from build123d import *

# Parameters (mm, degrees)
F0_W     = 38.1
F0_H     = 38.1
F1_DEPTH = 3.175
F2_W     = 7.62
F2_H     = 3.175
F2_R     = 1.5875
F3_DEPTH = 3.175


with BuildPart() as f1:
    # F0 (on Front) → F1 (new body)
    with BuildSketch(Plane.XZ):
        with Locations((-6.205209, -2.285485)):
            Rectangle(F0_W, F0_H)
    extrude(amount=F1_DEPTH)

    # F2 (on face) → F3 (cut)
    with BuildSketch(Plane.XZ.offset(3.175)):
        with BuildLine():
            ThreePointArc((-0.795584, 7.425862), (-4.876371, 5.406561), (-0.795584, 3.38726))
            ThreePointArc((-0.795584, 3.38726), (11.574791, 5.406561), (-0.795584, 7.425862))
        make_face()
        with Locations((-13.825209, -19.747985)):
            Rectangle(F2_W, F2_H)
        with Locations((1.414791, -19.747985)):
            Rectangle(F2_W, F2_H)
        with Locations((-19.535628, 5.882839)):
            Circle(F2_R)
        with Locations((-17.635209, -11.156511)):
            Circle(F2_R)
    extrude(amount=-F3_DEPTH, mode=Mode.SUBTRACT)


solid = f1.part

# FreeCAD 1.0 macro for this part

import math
import FreeCAD as App
import Part
import Sketcher
Q = App.Units.Quantity


def add_polygon(sketch, points):
    """Adds a closed chain of lines whose ends are joined by coincident constraints."""
    first, n = sketch.GeometryCount, len(points)
    for a, b in zip(points, points[1:] + points[:1]):
        sketch.addGeometry(Part.LineSegment(App.Vector(*a, 0), App.Vector(*b, 0)), False)
    for i in range(n):
        sketch.addConstraint(Sketcher.Constraint("Coincident", first + i, 2, first + (i + 1) % n, 1))

doc = App.newDocument("Part")
body = doc.addObject("PartDesign::Body", "Body")

sketch1 = body.newObject("Sketcher::SketchObject", "Sketch")
sketch1.AttachmentSupport = (doc.getObject("XZ_Plane"), [""])
sketch1.MapMode = "FlatFace"
add_polygon(sketch1, [(-25, 17), (-25, -21), (13, -21), (13, 17)])
sketch1.addConstraint(Sketcher.Constraint("Vertical", 0))
sketch1.addConstraint(Sketcher.Constraint("Horizontal", 1))
sketch1.addConstraint(Sketcher.Constraint("Vertical", 2))
sketch1.addConstraint(Sketcher.Constraint("Horizontal", 3))
sketch1.addConstraint(Sketcher.Constraint("Equal", 3, 0))
sketch1.addConstraint(Sketcher.Constraint("DistanceX", 1, 1, 1, 2, Q("1.5 in")))
sketch1.addConstraint(Sketcher.Constraint("DistanceX", 0, 2, -1, 1, Q("25.255209 mm")))
sketch1.addConstraint(Sketcher.Constraint("DistanceY", 0, 2, -1, 1, Q("21.335485 mm")))
pad1 = body.newObject("PartDesign::Pad", "Pad")
pad1.Profile = sketch1
pad1.Length = Q("0.125 in")

sketch2 = body.newObject("Sketcher::SketchObject", "Sketch001")
sketch2.AttachmentSupport = (doc.getObject("XZ_Plane"), [""])
sketch2.MapMode = "FlatFace"
sketch2.AttachmentOffset = App.Placement(App.Vector(0, 0, 0.125 * 25.4), App.Rotation())
sketch2.addGeometry(Part.ArcOfCircle(Part.Circle(App.Vector(-2.3, 5.4, 0), App.Vector(0, 0, 1), 2.5), math.radians(53), math.radians(307)), False)
sketch2.addGeometry(Part.ArcOfCircle(Part.Circle(App.Vector(5.2, 5.4, 0), App.Vector(0, 0, 1), 6.3), math.radians(-161), math.radians(161)), False)
add_polygon(sketch2, [(-17.6, -18.2), (-17.6, -21.3), (-10, -21.3), (-10, -18.2)])
add_polygon(sketch2, [(-2.4, -18.2), (-2.4, -21.3), (5.2, -21.3), (5.2, -18.2)])
sketch2.addGeometry(Part.Circle(App.Vector(-19.5, 5.9, 0), App.Vector(0, 0, 1), 1.6), False)
sketch2.addGeometry(Part.Circle(App.Vector(-17.6, -11.2, 0), App.Vector(0, 0, 1), 1.6), False)
sketch2.addConstraint(Sketcher.Constraint("Coincident", 0, 1, 1, 2))
sketch2.addConstraint(Sketcher.Constraint("Coincident", 1, 1, 0, 2))
sketch2.addConstraint(Sketcher.Constraint("Vertical", 2))
sketch2.addConstraint(Sketcher.Constraint("Horizontal", 3))
sketch2.addConstraint(Sketcher.Constraint("Vertical", 4))
sketch2.addConstraint(Sketcher.Constraint("Horizontal", 5))
sketch2.addConstraint(Sketcher.Constraint("Vertical", 6))
sketch2.addConstraint(Sketcher.Constraint("Horizontal", 7))
sketch2.addConstraint(Sketcher.Constraint("Vertical", 8))
sketch2.addConstraint(Sketcher.Constraint("Horizontal", 9))
sketch2.addConstraint(Sketcher.Constraint("Equal", 10, 11))
sketch2.addConstraint(Sketcher.Constraint("Horizontal", 0, 3, 1, 3))
sketch2.addConstraint(Sketcher.Constraint("Horizontal", 3, 2, 6, 2))
sketch2.addConstraint(Sketcher.Constraint("Horizontal", 5, 2, 8, 2))
sketch2.addConstraint(Sketcher.Constraint("Vertical", 11, 3, 2, 2))
sketch2.addConstraint(Sketcher.Constraint("Vertical", 1, 3, 7, 2))
sketch2.addConstraint(Sketcher.Constraint("Equal", 5, 7))
sketch2.addConstraint(Sketcher.Constraint("Radius", 0, Q("0.1 in")))
sketch2.addConstraint(Sketcher.Constraint("Radius", 1, Q("0.25 in")))
sketch2.addConstraint(Sketcher.Constraint("Diameter", 10, Q("0.125 in")))
sketch2.addConstraint(Sketcher.Constraint("DistanceX", 3, 1, 3, 2, Q("0.3 in")))
sketch2.addConstraint(Sketcher.Constraint("DistanceX", 11, 3, 1, 3, Q("0.9 in")))
sketch2.addConstraint(Sketcher.Constraint("DistanceY", 2, 2, 2, 1, Q("0.125 in")))
sketch2.addConstraint(Sketcher.Constraint("DistanceY", 1, 1, 0, 1, Q("0.1590001 in")))
sketch2.addConstraint(Sketcher.Constraint("DistanceX", 0, 3, -1, 1, Q("2.336371 mm")))
sketch2.addConstraint(Sketcher.Constraint("DistanceY", -1, 1, 0, 3, Q("5.406561 mm")))
sketch2.addConstraint(Sketcher.Constraint("DistanceY", -1, 1, 10, 3, Q("5.882839 mm")))
sketch2.addConstraint(Sketcher.Constraint("DistanceY", 11, 3, -1, 1, Q("11.156511 mm")))
sketch2.addConstraint(Sketcher.Constraint("DistanceX", 10, 3, 1, 3, Q("24.760419 mm")))
sketch2.addConstraint(Sketcher.Constraint("DistanceY", 2, 2, -1, 1, Q("21.335485 mm")))
pocket1 = body.newObject("PartDesign::Pocket", "Pocket")
pocket1.Profile = sketch2
pocket1.Length = Q("0.125 in")

doc.recompute()
